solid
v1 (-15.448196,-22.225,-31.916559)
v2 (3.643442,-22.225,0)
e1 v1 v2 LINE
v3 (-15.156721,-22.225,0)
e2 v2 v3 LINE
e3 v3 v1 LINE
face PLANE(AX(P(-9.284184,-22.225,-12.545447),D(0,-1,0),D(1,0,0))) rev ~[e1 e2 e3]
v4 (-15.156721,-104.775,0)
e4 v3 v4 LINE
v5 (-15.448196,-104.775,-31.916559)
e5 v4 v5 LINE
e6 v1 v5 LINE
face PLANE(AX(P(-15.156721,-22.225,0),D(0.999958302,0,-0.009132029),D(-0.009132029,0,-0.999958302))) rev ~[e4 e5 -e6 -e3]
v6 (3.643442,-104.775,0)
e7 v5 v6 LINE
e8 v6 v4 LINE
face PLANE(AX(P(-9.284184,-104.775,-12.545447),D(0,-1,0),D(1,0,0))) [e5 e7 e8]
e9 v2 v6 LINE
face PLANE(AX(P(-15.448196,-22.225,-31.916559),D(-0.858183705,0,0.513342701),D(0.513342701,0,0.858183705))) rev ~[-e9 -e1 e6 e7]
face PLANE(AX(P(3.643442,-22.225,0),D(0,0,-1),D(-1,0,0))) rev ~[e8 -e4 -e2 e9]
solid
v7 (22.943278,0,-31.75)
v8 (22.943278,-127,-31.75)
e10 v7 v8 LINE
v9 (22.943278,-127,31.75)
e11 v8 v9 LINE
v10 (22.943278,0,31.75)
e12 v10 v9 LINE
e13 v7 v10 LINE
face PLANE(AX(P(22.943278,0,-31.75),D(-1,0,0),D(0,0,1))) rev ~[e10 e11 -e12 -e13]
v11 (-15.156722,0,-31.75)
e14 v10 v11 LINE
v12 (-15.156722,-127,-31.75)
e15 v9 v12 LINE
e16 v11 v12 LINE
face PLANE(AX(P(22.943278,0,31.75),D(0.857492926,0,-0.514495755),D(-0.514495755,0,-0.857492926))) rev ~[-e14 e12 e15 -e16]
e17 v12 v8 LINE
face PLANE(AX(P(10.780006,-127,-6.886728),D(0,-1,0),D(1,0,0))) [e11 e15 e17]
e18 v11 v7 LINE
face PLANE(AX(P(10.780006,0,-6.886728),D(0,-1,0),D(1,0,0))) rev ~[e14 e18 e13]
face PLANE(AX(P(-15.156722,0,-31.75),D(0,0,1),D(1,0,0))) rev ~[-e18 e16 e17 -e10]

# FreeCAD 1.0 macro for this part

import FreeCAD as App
import Part
import Sketcher
Q = App.Units.Quantity


def add_polygon(sketch, points):
    """Adds a closed chain of lines whose ends are joined by coincident constraints."""
    first, n = sketch.GeometryCount, len(points)
    for a, b in zip(points, points[1:] + points[:1]):
        sketch.addGeometry(Part.LineSegment(App.Vector(*a, 0), App.Vector(*b, 0)), False)
    for i in range(n):
        sketch.addConstraint(Sketcher.Constraint("Coincident", first + i, 2, first + (i + 1) % n, 1))

doc = App.newDocument("Part")
params = doc.addObject("Spreadsheet::Sheet", "Params")
for row, (alias, value) in enumerate([
    ("sketch1_width", "1.5 in"),
    ("sketch1_height", "2.5 in"),
    ("pad1_length", "5 in"),
    ("pad2_length", "3.25 in"),
], start=1):
    params.set(f"A{row}", alias)
    params.set(f"B{row}", "=" + value)
    params.setAlias(f"B{row}", alias)

body = doc.addObject("PartDesign::Body", "Body")

# Sketch on XZ plane
sketch1 = body.newObject("Sketcher::SketchObject", "Sketch")
sketch1.AttachmentSupport = (doc.getObject("XZ_Plane"), [""])
sketch1.MapMode = "FlatFace"
add_polygon(sketch1, [(-15, -32), (23, -32), (23, 32)])  # lines 0-2
sketch1.addConstraint([
    Sketcher.Constraint("Horizontal", 0),
    Sketcher.Constraint("Vertical", 1),
    Sketcher.Constraint("DistanceX", 0, 1, 0, 2, Q("1.5 in")),
    Sketcher.Constraint("DistanceY", 1, 1, 1, 2, Q("2.5 in")),
    Sketcher.Constraint("DistanceY", 0, 2, -1, 1, Q("1.25 in")),
    Sketcher.Constraint("DistanceX", -1, 1, 0, 2, Q("22.943278 mm")),
])
sketch1.setExpression("Constraints[5]", "Params.sketch1_width")
sketch1.setExpression("Constraints[6]", "Params.sketch1_height")
pad1 = body.newObject("PartDesign::Pad", "Pad")
pad1.Profile = sketch1
pad1.setExpression("Length", "Params.pad1_length")
body2 = doc.addObject("PartDesign::Body", "Body001")

# Sketch on XZ plane
sketch2 = body2.newObject("Sketcher::SketchObject", "Sketch001")
sketch2.AttachmentSupport = (doc.getObject("XZ_Plane001"), [""])
sketch2.MapMode = "FlatFace"
sketch2.AttachmentOffset = App.Placement(App.Vector(0, 0, 0.875 * 25.4), App.Rotation())
add_polygon(sketch2, [(-15.156721, 0), (-15.448196, -31.916559), (3.643442, 0)])  # lines 0-2
sketch2.addConstraint([
    Sketcher.Constraint("Horizontal", 2),
    Sketcher.Constraint("PointOnObject", 1, 2, -1),
    Sketcher.Constraint("Distance", 0, Q("31.91789 mm")),
    Sketcher.Constraint("DistanceX", 2, 2, 2, 1, Q("18.800163 mm")),
    Sketcher.Constraint("DistanceY", 0, 2, -1, 1, Q("31.916559 mm")),
    Sketcher.Constraint("DistanceX", -1, 1, 1, 2, Q("3.643442 mm")),
])
pad2 = body2.newObject("PartDesign::Pad", "Pad001")
pad2.Profile = sketch2
pad2.setExpression("Length", "Params.pad2_length")

doc.recompute()
